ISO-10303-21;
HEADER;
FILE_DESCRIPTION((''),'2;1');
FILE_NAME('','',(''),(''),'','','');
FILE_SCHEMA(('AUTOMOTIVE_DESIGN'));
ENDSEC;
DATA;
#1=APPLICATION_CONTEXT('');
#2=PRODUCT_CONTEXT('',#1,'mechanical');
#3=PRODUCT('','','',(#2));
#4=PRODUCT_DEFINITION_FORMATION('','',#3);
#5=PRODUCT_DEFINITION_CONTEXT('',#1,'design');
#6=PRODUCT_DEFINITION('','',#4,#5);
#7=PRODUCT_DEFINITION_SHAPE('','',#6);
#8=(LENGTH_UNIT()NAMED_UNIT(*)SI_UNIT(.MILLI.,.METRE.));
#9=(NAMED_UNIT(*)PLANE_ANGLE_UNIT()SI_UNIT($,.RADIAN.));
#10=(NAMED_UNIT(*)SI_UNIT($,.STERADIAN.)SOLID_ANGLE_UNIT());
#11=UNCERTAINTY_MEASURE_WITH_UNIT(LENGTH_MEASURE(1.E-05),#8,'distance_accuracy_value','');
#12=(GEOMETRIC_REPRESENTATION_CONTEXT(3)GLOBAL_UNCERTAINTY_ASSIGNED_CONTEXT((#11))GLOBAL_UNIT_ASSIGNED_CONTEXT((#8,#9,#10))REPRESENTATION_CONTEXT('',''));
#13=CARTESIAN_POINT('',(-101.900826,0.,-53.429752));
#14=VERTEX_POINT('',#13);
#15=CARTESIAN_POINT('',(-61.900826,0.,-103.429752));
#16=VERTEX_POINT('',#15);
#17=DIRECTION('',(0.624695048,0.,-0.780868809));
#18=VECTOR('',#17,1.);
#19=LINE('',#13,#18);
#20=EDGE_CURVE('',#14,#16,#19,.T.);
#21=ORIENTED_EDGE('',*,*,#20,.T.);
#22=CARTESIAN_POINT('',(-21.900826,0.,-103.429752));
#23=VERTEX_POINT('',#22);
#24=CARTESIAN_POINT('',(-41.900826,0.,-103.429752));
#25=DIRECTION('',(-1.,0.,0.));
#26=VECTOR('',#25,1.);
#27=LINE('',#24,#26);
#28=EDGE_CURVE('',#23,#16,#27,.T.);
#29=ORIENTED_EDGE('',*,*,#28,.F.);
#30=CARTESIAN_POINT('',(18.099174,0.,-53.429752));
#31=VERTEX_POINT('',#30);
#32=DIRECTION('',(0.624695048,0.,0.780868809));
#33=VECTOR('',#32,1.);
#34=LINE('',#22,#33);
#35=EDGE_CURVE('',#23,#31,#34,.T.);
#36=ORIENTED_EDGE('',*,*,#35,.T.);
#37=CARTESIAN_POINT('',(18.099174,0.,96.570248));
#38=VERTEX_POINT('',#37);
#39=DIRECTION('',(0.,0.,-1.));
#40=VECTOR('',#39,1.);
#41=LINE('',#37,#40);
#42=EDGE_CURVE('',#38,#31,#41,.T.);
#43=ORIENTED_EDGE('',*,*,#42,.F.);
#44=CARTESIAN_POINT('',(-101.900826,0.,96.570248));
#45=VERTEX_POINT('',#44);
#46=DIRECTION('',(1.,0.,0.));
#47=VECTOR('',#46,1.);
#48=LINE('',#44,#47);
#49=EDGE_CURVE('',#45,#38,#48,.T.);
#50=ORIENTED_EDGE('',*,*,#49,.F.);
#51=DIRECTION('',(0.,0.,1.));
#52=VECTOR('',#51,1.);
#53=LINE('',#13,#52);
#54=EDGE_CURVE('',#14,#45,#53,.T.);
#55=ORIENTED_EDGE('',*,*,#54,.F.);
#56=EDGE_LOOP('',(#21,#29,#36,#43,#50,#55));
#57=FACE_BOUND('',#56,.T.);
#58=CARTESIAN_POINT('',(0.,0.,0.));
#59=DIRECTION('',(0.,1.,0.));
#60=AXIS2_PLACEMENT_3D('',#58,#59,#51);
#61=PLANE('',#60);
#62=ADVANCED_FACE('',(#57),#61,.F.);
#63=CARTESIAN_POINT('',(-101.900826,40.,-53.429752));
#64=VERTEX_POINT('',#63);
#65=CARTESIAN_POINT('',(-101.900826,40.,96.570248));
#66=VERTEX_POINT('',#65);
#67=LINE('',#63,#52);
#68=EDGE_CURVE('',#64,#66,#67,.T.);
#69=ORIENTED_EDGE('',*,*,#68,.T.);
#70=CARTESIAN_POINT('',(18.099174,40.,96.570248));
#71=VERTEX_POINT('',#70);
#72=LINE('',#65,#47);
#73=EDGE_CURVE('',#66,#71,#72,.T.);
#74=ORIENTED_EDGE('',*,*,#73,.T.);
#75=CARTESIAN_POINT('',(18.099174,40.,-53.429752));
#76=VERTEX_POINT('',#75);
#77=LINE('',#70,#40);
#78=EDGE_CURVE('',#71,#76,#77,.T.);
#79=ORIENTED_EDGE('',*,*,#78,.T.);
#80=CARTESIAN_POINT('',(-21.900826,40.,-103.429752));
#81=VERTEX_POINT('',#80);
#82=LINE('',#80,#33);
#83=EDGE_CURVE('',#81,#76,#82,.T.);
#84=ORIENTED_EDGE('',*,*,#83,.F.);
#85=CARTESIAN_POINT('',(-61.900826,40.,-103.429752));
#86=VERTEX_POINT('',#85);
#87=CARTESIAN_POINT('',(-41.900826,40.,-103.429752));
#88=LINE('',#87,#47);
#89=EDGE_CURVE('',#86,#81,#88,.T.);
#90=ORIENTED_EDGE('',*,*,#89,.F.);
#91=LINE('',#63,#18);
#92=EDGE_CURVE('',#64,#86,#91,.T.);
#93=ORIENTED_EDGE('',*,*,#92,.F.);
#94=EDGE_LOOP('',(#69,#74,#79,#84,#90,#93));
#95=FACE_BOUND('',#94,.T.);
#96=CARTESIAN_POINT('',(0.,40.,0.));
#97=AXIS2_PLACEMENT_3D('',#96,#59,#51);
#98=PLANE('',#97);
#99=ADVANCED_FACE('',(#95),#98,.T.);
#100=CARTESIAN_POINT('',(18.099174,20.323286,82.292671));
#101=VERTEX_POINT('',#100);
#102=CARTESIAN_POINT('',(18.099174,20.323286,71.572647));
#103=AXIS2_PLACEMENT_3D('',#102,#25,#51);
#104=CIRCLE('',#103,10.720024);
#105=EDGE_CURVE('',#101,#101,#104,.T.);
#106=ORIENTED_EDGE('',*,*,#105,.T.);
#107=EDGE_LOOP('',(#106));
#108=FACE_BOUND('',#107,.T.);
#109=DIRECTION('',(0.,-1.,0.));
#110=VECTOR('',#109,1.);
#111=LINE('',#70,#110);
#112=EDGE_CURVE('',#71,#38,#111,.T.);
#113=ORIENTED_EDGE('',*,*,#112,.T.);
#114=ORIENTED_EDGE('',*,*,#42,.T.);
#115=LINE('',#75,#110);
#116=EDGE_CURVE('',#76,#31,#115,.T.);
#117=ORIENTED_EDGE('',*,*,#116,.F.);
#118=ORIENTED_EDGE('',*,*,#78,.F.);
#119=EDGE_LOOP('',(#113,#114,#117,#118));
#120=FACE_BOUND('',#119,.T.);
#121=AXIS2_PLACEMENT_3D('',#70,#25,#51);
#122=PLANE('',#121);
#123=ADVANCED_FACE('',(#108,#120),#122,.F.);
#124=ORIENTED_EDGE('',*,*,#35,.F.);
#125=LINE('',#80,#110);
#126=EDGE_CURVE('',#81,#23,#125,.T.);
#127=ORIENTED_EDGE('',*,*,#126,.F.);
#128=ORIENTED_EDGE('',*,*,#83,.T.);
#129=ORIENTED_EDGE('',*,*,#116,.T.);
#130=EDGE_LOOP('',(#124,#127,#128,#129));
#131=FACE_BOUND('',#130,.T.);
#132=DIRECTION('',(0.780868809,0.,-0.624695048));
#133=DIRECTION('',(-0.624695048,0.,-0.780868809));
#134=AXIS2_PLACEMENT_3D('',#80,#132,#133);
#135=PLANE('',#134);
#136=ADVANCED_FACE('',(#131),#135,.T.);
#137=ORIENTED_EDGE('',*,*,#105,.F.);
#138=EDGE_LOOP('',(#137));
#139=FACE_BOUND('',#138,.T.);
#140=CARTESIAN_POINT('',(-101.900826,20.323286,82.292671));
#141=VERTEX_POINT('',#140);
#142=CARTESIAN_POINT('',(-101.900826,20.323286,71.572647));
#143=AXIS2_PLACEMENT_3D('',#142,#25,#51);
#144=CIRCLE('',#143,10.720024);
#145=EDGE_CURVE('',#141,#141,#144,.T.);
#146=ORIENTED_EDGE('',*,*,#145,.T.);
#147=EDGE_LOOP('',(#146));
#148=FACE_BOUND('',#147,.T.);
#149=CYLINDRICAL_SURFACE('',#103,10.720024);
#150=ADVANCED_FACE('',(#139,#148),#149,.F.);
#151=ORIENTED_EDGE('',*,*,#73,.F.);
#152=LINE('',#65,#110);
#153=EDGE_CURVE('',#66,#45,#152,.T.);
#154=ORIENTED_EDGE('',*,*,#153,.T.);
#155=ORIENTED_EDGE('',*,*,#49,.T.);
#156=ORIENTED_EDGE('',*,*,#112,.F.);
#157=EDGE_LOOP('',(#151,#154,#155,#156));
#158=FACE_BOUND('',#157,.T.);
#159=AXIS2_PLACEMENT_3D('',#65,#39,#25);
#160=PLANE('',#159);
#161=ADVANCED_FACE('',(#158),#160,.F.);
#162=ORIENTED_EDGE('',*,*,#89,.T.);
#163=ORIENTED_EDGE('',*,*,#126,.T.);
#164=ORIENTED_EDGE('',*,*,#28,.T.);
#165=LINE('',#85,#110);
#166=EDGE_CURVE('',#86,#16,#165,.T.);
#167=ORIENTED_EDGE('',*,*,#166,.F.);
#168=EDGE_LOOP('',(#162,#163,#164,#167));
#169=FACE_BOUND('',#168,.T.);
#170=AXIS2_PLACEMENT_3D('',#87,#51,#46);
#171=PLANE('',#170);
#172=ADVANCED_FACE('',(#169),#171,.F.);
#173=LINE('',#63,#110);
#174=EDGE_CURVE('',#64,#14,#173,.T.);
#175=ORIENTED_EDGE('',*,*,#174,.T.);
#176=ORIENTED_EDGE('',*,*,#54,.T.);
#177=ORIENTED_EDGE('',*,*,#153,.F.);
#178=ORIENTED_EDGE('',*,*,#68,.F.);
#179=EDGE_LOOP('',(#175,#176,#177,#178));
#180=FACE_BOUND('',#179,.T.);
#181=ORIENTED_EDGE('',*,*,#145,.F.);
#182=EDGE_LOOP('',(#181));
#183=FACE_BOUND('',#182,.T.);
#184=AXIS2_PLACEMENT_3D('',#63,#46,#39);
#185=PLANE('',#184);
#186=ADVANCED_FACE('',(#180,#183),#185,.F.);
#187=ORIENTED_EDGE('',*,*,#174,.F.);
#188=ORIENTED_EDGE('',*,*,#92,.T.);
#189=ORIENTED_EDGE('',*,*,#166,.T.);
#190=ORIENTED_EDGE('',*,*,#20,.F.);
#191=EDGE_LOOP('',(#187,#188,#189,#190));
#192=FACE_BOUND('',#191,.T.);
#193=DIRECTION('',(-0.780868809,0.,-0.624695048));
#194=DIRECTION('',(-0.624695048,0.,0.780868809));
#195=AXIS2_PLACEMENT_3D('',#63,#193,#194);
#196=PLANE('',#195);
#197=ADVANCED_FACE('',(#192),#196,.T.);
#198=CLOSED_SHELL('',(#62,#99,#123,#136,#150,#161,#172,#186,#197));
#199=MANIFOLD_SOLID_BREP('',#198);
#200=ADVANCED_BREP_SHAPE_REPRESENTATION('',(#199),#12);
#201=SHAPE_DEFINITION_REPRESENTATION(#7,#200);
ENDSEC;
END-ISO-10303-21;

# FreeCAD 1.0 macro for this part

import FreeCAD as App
import Part
import Sketcher
from FreeCAD import Vector
Q = App.Units.Quantity

doc = App.newDocument("Part")
body = doc.addObject("PartDesign::Body", "Body")

sketch1 = doc.addObject("Sketcher::SketchObject", "Sketch")
body.addObject(sketch1)
sketch1.AttachmentSupport = (doc.XZ_Plane, [""])
sketch1.MapMode = "FlatFace"
sketch1.addGeometry([
    Part.LineSegment(Vector(-102, -53, 0), Vector(-102, 97, 0)),
    Part.LineSegment(Vector(-102, 97, 0), Vector(18, 97, 0)),
    Part.LineSegment(Vector(18, 97, 0), Vector(18, -53, 0)),
    Part.LineSegment(Vector(18, -53, 0), Vector(-22, -103, 0)),
    Part.LineSegment(Vector(-22, -103, 0), Vector(-62, -103, 0)),
    Part.LineSegment(Vector(-62, -103, 0), Vector(-102, -53, 0)),
], False)
sketch1.addConstraint([
    Sketcher.Constraint("Coincident", 0, 2, 1, 1),
    Sketcher.Constraint("Coincident", 1, 2, 2, 1),
    Sketcher.Constraint("Coincident", 2, 2, 3, 1),
    Sketcher.Constraint("Coincident", 3, 2, 4, 1),
    Sketcher.Constraint("Coincident", 4, 2, 5, 1),
    Sketcher.Constraint("Coincident", 5, 2, 0, 1),
    Sketcher.Constraint("Vertical", 0),
    Sketcher.Constraint("Horizontal", 1),
    Sketcher.Constraint("Vertical", 2),
    Sketcher.Constraint("Horizontal", 4),
    Sketcher.Constraint("Horizontal", 2, 2, 5, 2),
    Sketcher.Constraint("Equal", 3, 5),
    Sketcher.Constraint("DistanceX", 1, 1, 1, 2, Q("120 mm")),
    Sketcher.Constraint("DistanceX", 4, 2, 4, 1, Q("40 mm")),
    Sketcher.Constraint("DistanceY", 0, 1, 0, 2, Q("150 mm")),
    Sketcher.Constraint("DistanceY", 3, 2, 2, 2, Q("50 mm")),
    Sketcher.Constraint("DistanceX", 0, 2, -1, 1, Q("101.900826 mm")),
    Sketcher.Constraint("DistanceY", -1, 1, 0, 2, Q("96.570248 mm")),
])
pad1 = doc.addObject("PartDesign::Pad", "Pad")
body.addObject(pad1)
pad1.Profile = sketch1
pad1.Length = 40
pad1.Reversed = True

sketch2 = doc.addObject("Sketcher::SketchObject", "Sketch001")
body.addObject(sketch2)
sketch2.AttachmentSupport = (doc.YZ_Plane, [""])
sketch2.MapMode = "FlatFace"
sketch2.AttachmentOffset = App.Placement(Vector(0, 0, -101.900826), App.Rotation())
sketch2.addGeometry(Part.Circle(Vector(20, 72, 0), Vector(0, 0, 1), 11), False)
sketch2.addConstraint([
    Sketcher.Constraint("Diameter", 0, Q("21.440048 mm")),
    Sketcher.Constraint("DistanceX", -1, 1, 0, 3, Q("20.323286 mm")),
    Sketcher.Constraint("DistanceY", -1, 1, 0, 3, Q("71.572647 mm")),
])
pocket1 = doc.addObject("PartDesign::Pocket", "Pocket")
body.addObject(pocket1)
pocket1.Profile = sketch2
pocket1.Length = 120
pocket1.Reversed = True

doc.recompute()
